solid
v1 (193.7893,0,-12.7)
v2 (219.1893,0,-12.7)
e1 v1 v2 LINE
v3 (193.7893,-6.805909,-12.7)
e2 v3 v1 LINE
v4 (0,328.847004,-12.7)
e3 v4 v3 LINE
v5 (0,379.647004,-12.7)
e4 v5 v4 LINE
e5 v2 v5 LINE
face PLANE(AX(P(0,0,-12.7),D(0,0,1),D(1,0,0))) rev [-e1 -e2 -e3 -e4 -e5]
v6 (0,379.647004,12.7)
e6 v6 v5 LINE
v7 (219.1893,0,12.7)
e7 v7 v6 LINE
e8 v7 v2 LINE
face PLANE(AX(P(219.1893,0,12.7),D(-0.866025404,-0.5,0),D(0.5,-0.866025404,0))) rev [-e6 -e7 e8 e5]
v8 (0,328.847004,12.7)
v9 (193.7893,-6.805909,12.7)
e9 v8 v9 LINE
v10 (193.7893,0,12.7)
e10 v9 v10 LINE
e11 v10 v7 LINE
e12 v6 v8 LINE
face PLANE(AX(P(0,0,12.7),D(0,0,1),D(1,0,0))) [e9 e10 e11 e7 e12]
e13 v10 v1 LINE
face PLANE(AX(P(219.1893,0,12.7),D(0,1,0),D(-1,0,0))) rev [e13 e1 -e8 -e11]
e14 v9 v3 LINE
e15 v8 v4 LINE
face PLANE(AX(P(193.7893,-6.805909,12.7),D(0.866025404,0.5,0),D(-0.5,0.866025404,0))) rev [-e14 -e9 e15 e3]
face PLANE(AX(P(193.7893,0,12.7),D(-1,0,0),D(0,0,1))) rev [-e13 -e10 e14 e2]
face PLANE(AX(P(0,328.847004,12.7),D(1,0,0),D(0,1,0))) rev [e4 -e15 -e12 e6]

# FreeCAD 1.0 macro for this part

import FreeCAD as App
import Part
import Sketcher

V = App.Vector
Q = App.Units.Quantity


def add_polygon(sketch, points):
    """Adds a closed chain of lines whose ends are joined by coincident constraints."""
    first, n = sketch.GeometryCount, len(points)
    for a, b in zip(points, points[1:] + points[:1]):
        sketch.addGeometry(Part.LineSegment(App.Vector(*a, 0), App.Vector(*b, 0)), False)
    for i in range(n):
        sketch.addConstraint(Sketcher.Constraint("Coincident", first + i, 2, first + (i + 1) % n, 1))

doc = App.newDocument("Part")
body = doc.addObject("PartDesign::Body", "Body")

sketch1 = body.newObject("Sketcher::SketchObject", "Sketch")
sketch1.AttachmentSupport = (doc.getObject("XY_Plane"), [""])
sketch1.MapMode = "FlatFace"
add_polygon(sketch1, [(219, 0), (0, 380), (0, 329), (194, -7), (194, 0)])
sketch1.addConstraint(Sketcher.Constraint("Vertical", 1))
sketch1.addConstraint(Sketcher.Constraint("Vertical", 3))
sketch1.addConstraint(Sketcher.Constraint("Horizontal", 4))
sketch1.addConstraint(Sketcher.Constraint("PointOnObject", 0, 2, -2))
sketch1.addConstraint(Sketcher.Constraint("PointOnObject", 3, 2, -1))
sketch1.addConstraint(Sketcher.Constraint("Parallel", 0, 2))
sketch1.addConstraint(Sketcher.Constraint("DistanceX", 4, 1, 4, 2, Q("1 in")))
sketch1.addConstraint(Sketcher.Constraint("DistanceY", 1, 2, 1, 1, Q("2 in")))
sketch1.addConstraint(Sketcher.Constraint("Angle", 0, Q("120 deg")))
sketch1.addConstraint(Sketcher.Constraint("Distance", 0, Q("17.259 in")))
pad1 = body.newObject("PartDesign::Pad", "Pad")
pad1.Profile = sketch1
pad1.Length = Q("1 in")
pad1.Midplane = True

doc.recompute()
